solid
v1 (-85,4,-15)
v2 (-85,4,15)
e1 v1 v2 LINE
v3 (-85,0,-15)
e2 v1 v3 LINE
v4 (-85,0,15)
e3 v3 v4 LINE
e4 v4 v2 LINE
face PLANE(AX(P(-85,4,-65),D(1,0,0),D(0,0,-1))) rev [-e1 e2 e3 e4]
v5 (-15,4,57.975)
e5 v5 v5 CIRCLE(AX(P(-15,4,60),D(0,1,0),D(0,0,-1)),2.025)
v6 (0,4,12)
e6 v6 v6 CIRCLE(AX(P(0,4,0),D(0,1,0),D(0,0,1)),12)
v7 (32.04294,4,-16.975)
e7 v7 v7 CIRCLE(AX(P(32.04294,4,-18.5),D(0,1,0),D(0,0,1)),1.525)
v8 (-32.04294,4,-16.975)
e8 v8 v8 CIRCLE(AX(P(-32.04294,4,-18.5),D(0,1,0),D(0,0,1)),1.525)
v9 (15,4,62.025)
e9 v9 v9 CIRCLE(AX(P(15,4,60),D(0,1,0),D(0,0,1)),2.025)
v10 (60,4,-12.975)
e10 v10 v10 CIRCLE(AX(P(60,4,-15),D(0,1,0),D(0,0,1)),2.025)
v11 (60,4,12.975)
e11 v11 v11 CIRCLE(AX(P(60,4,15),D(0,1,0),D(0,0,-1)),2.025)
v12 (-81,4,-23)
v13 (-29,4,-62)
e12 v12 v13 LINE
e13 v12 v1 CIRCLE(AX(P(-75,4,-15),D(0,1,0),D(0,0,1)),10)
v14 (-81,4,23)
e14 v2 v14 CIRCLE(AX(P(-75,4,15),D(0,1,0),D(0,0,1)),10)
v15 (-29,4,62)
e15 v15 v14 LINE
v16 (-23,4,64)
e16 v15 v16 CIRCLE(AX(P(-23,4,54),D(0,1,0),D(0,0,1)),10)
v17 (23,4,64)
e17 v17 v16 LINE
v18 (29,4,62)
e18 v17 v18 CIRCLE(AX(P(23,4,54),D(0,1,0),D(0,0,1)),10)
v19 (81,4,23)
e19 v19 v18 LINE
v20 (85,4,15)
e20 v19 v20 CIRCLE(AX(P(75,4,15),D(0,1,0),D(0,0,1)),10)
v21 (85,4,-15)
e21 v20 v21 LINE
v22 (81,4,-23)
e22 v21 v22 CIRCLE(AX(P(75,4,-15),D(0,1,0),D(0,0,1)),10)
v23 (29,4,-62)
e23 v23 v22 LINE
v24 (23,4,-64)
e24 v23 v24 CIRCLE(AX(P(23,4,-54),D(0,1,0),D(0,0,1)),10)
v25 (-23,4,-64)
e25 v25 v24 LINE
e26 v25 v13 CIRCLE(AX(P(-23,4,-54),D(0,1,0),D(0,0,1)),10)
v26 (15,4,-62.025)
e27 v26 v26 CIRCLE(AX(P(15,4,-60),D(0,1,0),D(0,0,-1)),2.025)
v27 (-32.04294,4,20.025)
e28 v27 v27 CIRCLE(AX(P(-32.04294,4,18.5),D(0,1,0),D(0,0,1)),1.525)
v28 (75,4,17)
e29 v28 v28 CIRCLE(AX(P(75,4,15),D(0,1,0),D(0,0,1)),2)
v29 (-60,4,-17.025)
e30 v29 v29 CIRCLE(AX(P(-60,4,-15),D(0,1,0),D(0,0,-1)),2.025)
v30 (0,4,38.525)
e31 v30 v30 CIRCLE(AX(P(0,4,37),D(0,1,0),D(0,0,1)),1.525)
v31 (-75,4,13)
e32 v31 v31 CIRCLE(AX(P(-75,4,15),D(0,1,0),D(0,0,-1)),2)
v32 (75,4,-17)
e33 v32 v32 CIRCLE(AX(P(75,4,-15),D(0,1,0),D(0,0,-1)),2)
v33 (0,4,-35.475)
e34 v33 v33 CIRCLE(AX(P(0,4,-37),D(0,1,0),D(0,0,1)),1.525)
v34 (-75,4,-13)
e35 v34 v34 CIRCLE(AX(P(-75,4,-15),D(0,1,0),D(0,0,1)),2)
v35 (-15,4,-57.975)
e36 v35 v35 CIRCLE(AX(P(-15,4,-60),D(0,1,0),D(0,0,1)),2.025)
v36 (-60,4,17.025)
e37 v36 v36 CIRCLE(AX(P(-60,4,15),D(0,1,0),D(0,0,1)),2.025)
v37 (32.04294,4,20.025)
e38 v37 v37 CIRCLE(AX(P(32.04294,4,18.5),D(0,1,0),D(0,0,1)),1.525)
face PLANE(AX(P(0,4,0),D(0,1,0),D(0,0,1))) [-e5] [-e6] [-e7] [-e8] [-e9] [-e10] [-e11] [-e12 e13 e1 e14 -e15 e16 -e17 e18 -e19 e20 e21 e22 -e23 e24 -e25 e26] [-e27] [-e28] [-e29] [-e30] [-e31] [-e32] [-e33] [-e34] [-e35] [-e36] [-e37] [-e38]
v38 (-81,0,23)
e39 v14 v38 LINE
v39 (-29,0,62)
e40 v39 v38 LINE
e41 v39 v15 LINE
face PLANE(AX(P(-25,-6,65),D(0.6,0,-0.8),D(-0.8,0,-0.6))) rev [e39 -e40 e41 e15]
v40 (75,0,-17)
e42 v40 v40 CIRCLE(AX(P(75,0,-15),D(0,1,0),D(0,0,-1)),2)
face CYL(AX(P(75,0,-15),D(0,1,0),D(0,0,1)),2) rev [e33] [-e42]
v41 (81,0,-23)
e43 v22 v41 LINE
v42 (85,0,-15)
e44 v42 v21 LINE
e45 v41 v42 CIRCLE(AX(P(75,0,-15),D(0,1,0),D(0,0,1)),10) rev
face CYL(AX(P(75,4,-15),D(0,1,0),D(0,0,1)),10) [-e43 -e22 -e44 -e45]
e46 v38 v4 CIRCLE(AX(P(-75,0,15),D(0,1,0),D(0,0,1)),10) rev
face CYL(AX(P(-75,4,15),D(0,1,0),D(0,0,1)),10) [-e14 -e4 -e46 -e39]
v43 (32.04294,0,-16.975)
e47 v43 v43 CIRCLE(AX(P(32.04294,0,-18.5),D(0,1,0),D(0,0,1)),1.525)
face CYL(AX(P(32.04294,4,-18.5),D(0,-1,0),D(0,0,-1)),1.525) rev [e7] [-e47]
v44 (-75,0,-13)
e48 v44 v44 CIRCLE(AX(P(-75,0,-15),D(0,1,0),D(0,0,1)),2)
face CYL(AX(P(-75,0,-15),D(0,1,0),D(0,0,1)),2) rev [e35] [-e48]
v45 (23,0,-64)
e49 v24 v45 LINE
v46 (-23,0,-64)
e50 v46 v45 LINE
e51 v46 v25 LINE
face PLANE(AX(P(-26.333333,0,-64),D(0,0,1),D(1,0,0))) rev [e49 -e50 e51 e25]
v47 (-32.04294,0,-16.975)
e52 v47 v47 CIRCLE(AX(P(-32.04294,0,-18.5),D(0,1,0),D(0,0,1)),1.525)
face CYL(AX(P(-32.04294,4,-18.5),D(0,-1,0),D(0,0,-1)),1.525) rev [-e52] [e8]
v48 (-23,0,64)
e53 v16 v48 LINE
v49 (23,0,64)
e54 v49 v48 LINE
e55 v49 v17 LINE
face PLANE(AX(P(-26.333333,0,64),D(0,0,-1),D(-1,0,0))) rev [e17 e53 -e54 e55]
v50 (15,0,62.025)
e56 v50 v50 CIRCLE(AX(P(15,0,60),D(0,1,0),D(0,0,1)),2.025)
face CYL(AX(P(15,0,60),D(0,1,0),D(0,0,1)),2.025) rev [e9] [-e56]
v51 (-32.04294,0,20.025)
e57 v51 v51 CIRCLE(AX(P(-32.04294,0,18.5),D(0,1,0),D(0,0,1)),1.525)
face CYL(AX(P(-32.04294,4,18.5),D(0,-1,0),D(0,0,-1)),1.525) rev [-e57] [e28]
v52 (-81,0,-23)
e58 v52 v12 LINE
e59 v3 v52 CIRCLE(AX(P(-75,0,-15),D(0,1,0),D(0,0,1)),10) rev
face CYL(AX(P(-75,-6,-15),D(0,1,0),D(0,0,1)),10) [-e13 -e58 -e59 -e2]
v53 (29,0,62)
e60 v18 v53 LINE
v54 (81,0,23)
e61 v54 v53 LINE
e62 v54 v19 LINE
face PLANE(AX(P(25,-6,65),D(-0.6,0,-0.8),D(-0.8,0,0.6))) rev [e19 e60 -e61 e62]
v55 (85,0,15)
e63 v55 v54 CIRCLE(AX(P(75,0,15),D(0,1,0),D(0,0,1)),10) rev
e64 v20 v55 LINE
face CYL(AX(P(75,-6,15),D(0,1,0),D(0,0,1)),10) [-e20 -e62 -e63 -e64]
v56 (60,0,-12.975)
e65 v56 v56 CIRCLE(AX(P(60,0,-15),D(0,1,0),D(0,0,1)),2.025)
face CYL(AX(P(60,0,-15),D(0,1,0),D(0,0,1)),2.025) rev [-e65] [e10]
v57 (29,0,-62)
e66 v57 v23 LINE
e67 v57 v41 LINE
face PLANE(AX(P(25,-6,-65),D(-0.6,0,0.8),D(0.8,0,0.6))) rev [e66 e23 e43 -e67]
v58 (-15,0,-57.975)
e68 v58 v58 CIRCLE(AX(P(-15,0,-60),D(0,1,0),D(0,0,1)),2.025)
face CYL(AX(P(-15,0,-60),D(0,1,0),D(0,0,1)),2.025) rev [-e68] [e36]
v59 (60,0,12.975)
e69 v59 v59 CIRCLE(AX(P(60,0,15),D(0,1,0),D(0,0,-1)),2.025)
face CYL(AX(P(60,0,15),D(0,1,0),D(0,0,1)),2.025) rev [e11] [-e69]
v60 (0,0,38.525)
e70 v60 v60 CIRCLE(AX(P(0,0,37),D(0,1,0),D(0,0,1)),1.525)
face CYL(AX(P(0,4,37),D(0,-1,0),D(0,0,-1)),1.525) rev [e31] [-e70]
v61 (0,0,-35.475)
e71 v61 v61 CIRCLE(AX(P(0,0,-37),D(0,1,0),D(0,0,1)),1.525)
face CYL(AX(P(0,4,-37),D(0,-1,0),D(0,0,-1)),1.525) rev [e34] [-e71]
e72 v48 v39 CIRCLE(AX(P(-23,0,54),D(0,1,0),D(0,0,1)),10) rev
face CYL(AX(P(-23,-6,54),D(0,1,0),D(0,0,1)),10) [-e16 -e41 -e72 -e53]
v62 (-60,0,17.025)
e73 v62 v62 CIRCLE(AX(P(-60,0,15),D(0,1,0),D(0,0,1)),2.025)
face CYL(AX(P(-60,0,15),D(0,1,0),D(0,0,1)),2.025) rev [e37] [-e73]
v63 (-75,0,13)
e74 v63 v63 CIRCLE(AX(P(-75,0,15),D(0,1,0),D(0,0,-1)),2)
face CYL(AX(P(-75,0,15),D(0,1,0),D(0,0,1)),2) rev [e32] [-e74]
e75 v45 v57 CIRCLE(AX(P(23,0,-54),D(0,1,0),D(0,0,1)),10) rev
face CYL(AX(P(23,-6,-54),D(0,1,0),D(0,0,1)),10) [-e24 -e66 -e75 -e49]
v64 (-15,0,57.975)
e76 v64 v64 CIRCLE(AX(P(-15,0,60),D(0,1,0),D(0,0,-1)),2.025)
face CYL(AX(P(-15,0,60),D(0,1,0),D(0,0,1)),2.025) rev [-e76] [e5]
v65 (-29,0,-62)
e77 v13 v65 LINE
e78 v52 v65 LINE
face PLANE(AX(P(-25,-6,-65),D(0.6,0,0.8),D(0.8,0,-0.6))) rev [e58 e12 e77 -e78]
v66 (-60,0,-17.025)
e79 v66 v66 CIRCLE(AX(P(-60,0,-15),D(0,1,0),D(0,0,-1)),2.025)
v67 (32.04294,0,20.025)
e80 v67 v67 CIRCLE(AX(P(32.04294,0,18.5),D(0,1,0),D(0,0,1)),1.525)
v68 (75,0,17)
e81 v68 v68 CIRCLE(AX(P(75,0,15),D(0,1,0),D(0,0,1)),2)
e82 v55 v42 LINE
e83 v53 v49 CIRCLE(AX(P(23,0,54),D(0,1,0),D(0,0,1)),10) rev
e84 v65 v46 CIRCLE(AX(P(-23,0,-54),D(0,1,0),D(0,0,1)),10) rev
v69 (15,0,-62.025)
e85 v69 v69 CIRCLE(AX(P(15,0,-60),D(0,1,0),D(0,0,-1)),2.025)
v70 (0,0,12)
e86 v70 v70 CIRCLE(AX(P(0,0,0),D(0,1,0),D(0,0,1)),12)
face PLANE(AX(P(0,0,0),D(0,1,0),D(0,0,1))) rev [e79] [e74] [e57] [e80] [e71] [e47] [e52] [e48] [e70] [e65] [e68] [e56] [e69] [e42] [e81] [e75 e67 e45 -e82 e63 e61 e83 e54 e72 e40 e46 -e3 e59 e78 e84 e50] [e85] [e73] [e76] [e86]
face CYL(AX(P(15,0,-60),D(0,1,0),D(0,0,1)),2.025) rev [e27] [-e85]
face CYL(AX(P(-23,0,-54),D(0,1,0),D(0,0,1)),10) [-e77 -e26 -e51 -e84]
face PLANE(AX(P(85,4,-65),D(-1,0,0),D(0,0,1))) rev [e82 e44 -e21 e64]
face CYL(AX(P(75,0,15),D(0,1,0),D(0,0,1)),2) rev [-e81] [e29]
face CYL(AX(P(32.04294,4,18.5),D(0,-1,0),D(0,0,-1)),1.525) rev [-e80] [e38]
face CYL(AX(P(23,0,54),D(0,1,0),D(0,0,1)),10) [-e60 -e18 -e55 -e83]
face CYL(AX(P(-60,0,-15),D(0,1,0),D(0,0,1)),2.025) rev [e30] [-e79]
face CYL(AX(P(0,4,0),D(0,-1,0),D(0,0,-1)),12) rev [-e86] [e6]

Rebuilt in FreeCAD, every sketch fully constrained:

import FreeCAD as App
import Part
import Sketcher

V = App.Vector


def edges_at(feature, points):
    """Names of the edges that pass closest to the given points."""
    edges = feature.Shape.Edges
    near = lambda p: min(range(len(edges)), key=lambda i: edges[i].distToShape(Part.Vertex(*p))[0])
    return sorted({f"Edge{near(p) + 1}" for p in points})


def add_polygon(sketch, points):
    """Adds a closed chain of lines whose ends are joined by coincident constraints."""
    first, n = sketch.GeometryCount, len(points)
    for a, b in zip(points, points[1:] + points[:1]):
        sketch.addGeometry(Part.LineSegment(App.Vector(*a, 0), App.Vector(*b, 0)), False)
    for i in range(n):
        sketch.addConstraint(Sketcher.Constraint("Coincident", first + i, 2, first + (i + 1) % n, 1))

doc = App.newDocument("Part")
body = doc.addObject("PartDesign::Body", "Body")

# Sketch on XZ plane
sketch1 = body.newObject("Sketcher::SketchObject", "Sketch")
sketch1.AttachmentSupport = (doc.getObject("XZ_Plane"), [""])
sketch1.MapMode = "FlatFace"
add_polygon(sketch1, [(-85, -65), (-85, 65), (85, 65), (85, -65)])  # lines 0-3
sketch1.addGeometry(Part.Circle(V(0, 37, 0), V(0, 0, 1), 1.5), False)  # 4
sketch1.addGeometry(Part.Circle(V(-32, 18.5, 0), V(0, 0, 1), 1.5), False)  # 5
sketch1.addGeometry(Part.Circle(V(32, 18.5, 0), V(0, 0, 1), 1.5), False)  # 6
sketch1.addGeometry(Part.Circle(V(-32, -18.5, 0), V(0, 0, 1), 1.5), False)  # 7
sketch1.addGeometry(Part.Circle(V(0, 0, 0), V(0, 0, 1), 12), False)  # 8
sketch1.addGeometry(Part.Circle(V(0, -37, 0), V(0, 0, 1), 1.5), False)  # 9
sketch1.addGeometry(Part.Circle(V(32, -18.5, 0), V(0, 0, 1), 1.5), False)  # 10
sketch1.addConstraint(Sketcher.Constraint("Vertical", 0))
sketch1.addConstraint(Sketcher.Constraint("Horizontal", 1))
sketch1.addConstraint(Sketcher.Constraint("Vertical", 2))
sketch1.addConstraint(Sketcher.Constraint("Horizontal", 3))
sketch1.addConstraint(Sketcher.Constraint("Coincident", 8, 3, -1, 1))
sketch1.addConstraint(Sketcher.Constraint("Equal", 4, 5))
sketch1.addConstraint(Sketcher.Constraint("Equal", 5, 6))
sketch1.addConstraint(Sketcher.Constraint("Equal", 6, 7))
sketch1.addConstraint(Sketcher.Constraint("Equal", 7, 9))
sketch1.addConstraint(Sketcher.Constraint("Equal", 9, 10))
sketch1.addConstraint(Sketcher.Constraint("Symmetric", 6, 3, 7, 3, -1, 1))
sketch1.addConstraint(Sketcher.Constraint("Symmetric", 4, 3, 9, 3, -1, 1))
sketch1.addConstraint(Sketcher.Constraint("Symmetric", 5, 3, 10, 3, -1, 1))
sketch1.addConstraint(Sketcher.Constraint("Symmetric", 0, 2, 2, 2, -1, 1))
sketch1.addConstraint(Sketcher.Constraint("Symmetric", 5, 3, 6, 3, -2))
sketch1.addConstraint(Sketcher.Constraint("PointOnObject", 4, 3, -2))
sketch1.addConstraint(Sketcher.Constraint("Diameter", 8, 24.0))
sketch1.addConstraint(Sketcher.Constraint("Diameter", 4, 3.05))
sketch1.addConstraint(Sketcher.Constraint("DistanceX", 1, 1, 1, 2, 170.0))
sketch1.addConstraint(Sketcher.Constraint("DistanceY", 0, 1, 0, 2, 130.0))
sketch1.addConstraint(Sketcher.Constraint("DistanceY", -1, 1, 4, 3, 37.0))
sketch1.addConstraint(Sketcher.Constraint("DistanceY", 7, 3, 5, 3, 37.0))
sketch1.addConstraint(Sketcher.Constraint("DistanceX", 5, 3, -1, 1, 32.04294))
pad1 = body.newObject("PartDesign::Pad", "Pad")
pad1.Profile = sketch1
pad1.Length = 4
pad1.Reversed = True

# Sketch on XZ plane
sketch2 = body.newObject("Sketcher::SketchObject", "Sketch001")
sketch2.AttachmentSupport = (doc.getObject("XZ_Plane"), [""])
sketch2.MapMode = "FlatFace"
sketch2.AttachmentOffset = App.Placement(V(0, 0, -4), App.Rotation())
sketch2.addGeometry(Part.Circle(V(-15, -60, 0), V(0, 0, 1), 2), False)  # 0
sketch2.addGeometry(Part.Circle(V(-75, -15, 0), V(0, 0, 1), 2), False)  # 1
sketch2.addGeometry(Part.Circle(V(75, -15, 0), V(0, 0, 1), 2), False)  # 2
sketch2.addGeometry(Part.Circle(V(15, -60, 0), V(0, 0, 1), 2), False)  # 3
sketch2.addGeometry(Part.Circle(V(75, 15, 0), V(0, 0, 1), 2), False)  # 4
sketch2.addGeometry(Part.Circle(V(-75, 15, 0), V(0, 0, 1), 2), False)  # 5
sketch2.addGeometry(Part.Circle(V(60, -15, 0), V(0, 0, 1), 2), False)  # 6
sketch2.addGeometry(Part.Circle(V(60, 15, 0), V(0, 0, 1), 2), False)  # 7
sketch2.addGeometry(Part.Circle(V(15, 60, 0), V(0, 0, 1), 2), False)  # 8
sketch2.addGeometry(Part.Circle(V(-15, 60, 0), V(0, 0, 1), 2), False)  # 9
sketch2.addGeometry(Part.Circle(V(-60, 15, 0), V(0, 0, 1), 2), False)  # 10
sketch2.addGeometry(Part.Circle(V(-60, -15, 0), V(0, 0, 1), 2), False)  # 11
add_polygon(sketch2, [(-85, -65), (-85, -45), (-65, -45), (-65, -65)])  # lines 12-15
add_polygon(sketch2, [(65, -65), (65, -45), (85, -45), (85, -65)])  # lines 16-19
add_polygon(sketch2, [(65, 45), (65, 65), (85, 65), (85, 45)])  # lines 20-23
add_polygon(sketch2, [(-85, 45), (-85, 65), (-65, 65), (-65, 45)])  # lines 24-27
sketch2.addConstraint(Sketcher.Constraint("Vertical", 12))
sketch2.addConstraint(Sketcher.Constraint("Horizontal", 13))
sketch2.addConstraint(Sketcher.Constraint("Vertical", 14))
sketch2.addConstraint(Sketcher.Constraint("Horizontal", 15))
sketch2.addConstraint(Sketcher.Constraint("Vertical", 16))
sketch2.addConstraint(Sketcher.Constraint("Horizontal", 17))
sketch2.addConstraint(Sketcher.Constraint("Vertical", 18))
sketch2.addConstraint(Sketcher.Constraint("Horizontal", 19))
sketch2.addConstraint(Sketcher.Constraint("Vertical", 20))
sketch2.addConstraint(Sketcher.Constraint("Horizontal", 21))
sketch2.addConstraint(Sketcher.Constraint("Vertical", 22))
sketch2.addConstraint(Sketcher.Constraint("Horizontal", 23))
sketch2.addConstraint(Sketcher.Constraint("Vertical", 24))
sketch2.addConstraint(Sketcher.Constraint("Horizontal", 25))
sketch2.addConstraint(Sketcher.Constraint("Vertical", 26))
sketch2.addConstraint(Sketcher.Constraint("Horizontal", 27))
sketch2.addConstraint(Sketcher.Constraint("Equal", 1, 2))
sketch2.addConstraint(Sketcher.Constraint("Equal", 0, 3))
sketch2.addConstraint(Sketcher.Constraint("Equal", 2, 4))
sketch2.addConstraint(Sketcher.Constraint("Equal", 4, 5))
sketch2.addConstraint(Sketcher.Constraint("Equal", 3, 6))
sketch2.addConstraint(Sketcher.Constraint("Equal", 6, 7))
sketch2.addConstraint(Sketcher.Constraint("Equal", 7, 8))
sketch2.addConstraint(Sketcher.Constraint("Equal", 8, 9))
sketch2.addConstraint(Sketcher.Constraint("Equal", 9, 10))
sketch2.addConstraint(Sketcher.Constraint("Equal", 10, 11))
sketch2.addConstraint(Sketcher.Constraint("Symmetric", 1, 3, 4, 3, -1, 1))
sketch2.addConstraint(Sketcher.Constraint("Symmetric", 2, 3, 5, 3, -1, 1))
sketch2.addConstraint(Sketcher.Constraint("Symmetric", 0, 3, 8, 3, -1, 1))
sketch2.addConstraint(Sketcher.Constraint("Symmetric", 3, 3, 9, 3, -1, 1))
sketch2.addConstraint(Sketcher.Constraint("Symmetric", 6, 3, 10, 3, -1, 1))
sketch2.addConstraint(Sketcher.Constraint("Symmetric", 7, 3, 11, 3, -1, 1))
sketch2.addConstraint(Sketcher.Constraint("Symmetric", 14, 2, 20, 2, -1, 1))
sketch2.addConstraint(Sketcher.Constraint("Symmetric", 12, 2, 22, 2, -1, 1))
sketch2.addConstraint(Sketcher.Constraint("Symmetric", 18, 2, 24, 2, -1, 1))
sketch2.addConstraint(Sketcher.Constraint("Symmetric", 16, 2, 26, 2, -1, 1))
sketch2.addConstraint(Sketcher.Constraint("Symmetric", 1, 3, 2, 3, -2))
sketch2.addConstraint(Sketcher.Constraint("Symmetric", 0, 3, 3, 3, -2))
sketch2.addConstraint(Sketcher.Constraint("Symmetric", 7, 3, 10, 3, -2))
sketch2.addConstraint(Sketcher.Constraint("Symmetric", 13, 2, 16, 2, -2))
sketch2.addConstraint(Sketcher.Constraint("Symmetric", 15, 2, 18, 2, -2))
sketch2.addConstraint(Sketcher.Constraint("Horizontal", 2, 3, 6, 3))
sketch2.addConstraint(Sketcher.Constraint("Equal", 27, 12))
sketch2.addConstraint(Sketcher.Constraint("Diameter", 1, 4.0))
sketch2.addConstraint(Sketcher.Constraint("Diameter", 0, 4.05))
sketch2.addConstraint(Sketcher.Constraint("DistanceX", 13, 1, 13, 2, 20.0))
sketch2.addConstraint(Sketcher.Constraint("DistanceX", 0, 3, -1, 1, 15.0))
sketch2.addConstraint(Sketcher.Constraint("DistanceY", 0, 3, -1, 1, 60.0))
sketch2.addConstraint(Sketcher.Constraint("DistanceX", 1, 3, -1, 1, 75.0))
sketch2.addConstraint(Sketcher.Constraint("DistanceY", 1, 3, -1, 1, 15.0))
sketch2.addConstraint(Sketcher.Constraint("DistanceX", -1, 1, 6, 3, 60.0))
sketch2.addConstraint(Sketcher.Constraint("DistanceX", 12, 2, -1, 1, 85.0))
sketch2.addConstraint(Sketcher.Constraint("DistanceY", 12, 2, -1, 1, 45.0))
pocket1 = body.newObject("PartDesign::Pocket", "Pocket")
pocket1.Profile = sketch2
pocket1.Length = 4
pocket1.Reversed = True

# Sketch on XZ plane
sketch3 = body.newObject("Sketcher::SketchObject", "Sketch002")
sketch3.AttachmentSupport = (doc.getObject("XZ_Plane"), [""])
sketch3.MapMode = "FlatFace"
sketch3.AttachmentOffset = App.Placement(V(0, 0, -4), App.Rotation())
add_polygon(sketch3, [(-85, -65), (-85, -20), (-25, -65)])  # lines 0-2
add_polygon(sketch3, [(-85, 65), (-25, 65), (-85, 20)])  # lines 3-5
add_polygon(sketch3, [(85, 65), (85, 20), (25, 65)])  # lines 6-8
add_polygon(sketch3, [(85, -65), (25, -65), (85, -20)])  # lines 9-11
sketch3.addConstraint(Sketcher.Constraint("Vertical", 0))
sketch3.addConstraint(Sketcher.Constraint("Horizontal", 2))
sketch3.addConstraint(Sketcher.Constraint("Horizontal", 3))
sketch3.addConstraint(Sketcher.Constraint("Vertical", 5))
sketch3.addConstraint(Sketcher.Constraint("Vertical", 6))
sketch3.addConstraint(Sketcher.Constraint("Horizontal", 8))
sketch3.addConstraint(Sketcher.Constraint("Horizontal", 9))
sketch3.addConstraint(Sketcher.Constraint("Vertical", 11))
sketch3.addConstraint(Sketcher.Constraint("Symmetric", 0, 2, 6, 2, -1, 1))
sketch3.addConstraint(Sketcher.Constraint("Symmetric", 1, 2, 7, 2, -1, 1))
sketch3.addConstraint(Sketcher.Constraint("Symmetric", 3, 2, 9, 2, -1, 1))
sketch3.addConstraint(Sketcher.Constraint("Symmetric", 4, 2, 10, 2, -1, 1))
sketch3.addConstraint(Sketcher.Constraint("Symmetric", 4, 2, 6, 2, -2))
sketch3.addConstraint(Sketcher.Constraint("Symmetric", 3, 2, 7, 2, -2))
sketch3.addConstraint(Sketcher.Constraint("DistanceX", 2, 2, 2, 1, 60.0))
sketch3.addConstraint(Sketcher.Constraint("DistanceY", 0, 1, 0, 2, 45.0))
sketch3.addConstraint(Sketcher.Constraint("DistanceX", 0, 2, -1, 1, 85.0))
sketch3.addConstraint(Sketcher.Constraint("DistanceY", 0, 2, -1, 1, 20.0))
pocket2 = body.newObject("PartDesign::Pocket", "Pocket001")
pocket2.Profile = sketch3
pocket2.Length = 10
pocket2.Reversed = True

# Sketch on XZ plane
sketch4 = body.newObject("Sketcher::SketchObject", "Sketch003")
sketch4.AttachmentSupport = (doc.getObject("XZ_Plane"), [""])
sketch4.MapMode = "FlatFace"
sketch4.AttachmentOffset = App.Placement(V(0, 0, -4), App.Rotation())
add_polygon(sketch4, [(-26, -69), (-26, -64), (26, -64), (26, -69)])  # lines 0-3
add_polygon(sketch4, [(-26, 64), (-26, 69), (26, 69), (26, 64)])  # lines 4-7
sketch4.addConstraint(Sketcher.Constraint("Vertical", 0))
sketch4.addConstraint(Sketcher.Constraint("Horizontal", 1))
sketch4.addConstraint(Sketcher.Constraint("Vertical", 2))
sketch4.addConstraint(Sketcher.Constraint("Horizontal", 3))
sketch4.addConstraint(Sketcher.Constraint("Vertical", 4))
sketch4.addConstraint(Sketcher.Constraint("Horizontal", 5))
sketch4.addConstraint(Sketcher.Constraint("Vertical", 6))
sketch4.addConstraint(Sketcher.Constraint("Horizontal", 7))
sketch4.addConstraint(Sketcher.Constraint("Symmetric", 2, 2, 4, 2, -1, 1))
sketch4.addConstraint(Sketcher.Constraint("Symmetric", 0, 2, 6, 2, -1, 1))
sketch4.addConstraint(Sketcher.Constraint("Vertical", 3, 2, 4, 2))
sketch4.addConstraint(Sketcher.Constraint("DistanceY", 0, 1, 0, 2, 5.0))
sketch4.addConstraint(Sketcher.Constraint("DistanceY", 0, 2, -1, 1, 64.0))
sketch4.addConstraint(Sketcher.Constraint("DistanceX", 1, 1, 1, 2, 52.666667))
pocket3 = body.newObject("PartDesign::Pocket", "Pocket002")
pocket3.Profile = sketch4
pocket3.Type = "ThroughAll"
pocket3.Reversed = True
doc.recompute()

fillet = body.newObject("PartDesign::Fillet", "Fillet")
fillet.Base = (pocket3, edges_at(pocket3, [
    (85, 2, -20),
    (85, 2, 20),
    (-85, 2, 20),
    (-85, 2, -20),
    (-26.333, 2, -64),
    (26.333, 2, -64),
    (-26.333, 2, 64),
    (26.333, 2, 64),
]))
fillet.Radius = 10

doc.recompute()
